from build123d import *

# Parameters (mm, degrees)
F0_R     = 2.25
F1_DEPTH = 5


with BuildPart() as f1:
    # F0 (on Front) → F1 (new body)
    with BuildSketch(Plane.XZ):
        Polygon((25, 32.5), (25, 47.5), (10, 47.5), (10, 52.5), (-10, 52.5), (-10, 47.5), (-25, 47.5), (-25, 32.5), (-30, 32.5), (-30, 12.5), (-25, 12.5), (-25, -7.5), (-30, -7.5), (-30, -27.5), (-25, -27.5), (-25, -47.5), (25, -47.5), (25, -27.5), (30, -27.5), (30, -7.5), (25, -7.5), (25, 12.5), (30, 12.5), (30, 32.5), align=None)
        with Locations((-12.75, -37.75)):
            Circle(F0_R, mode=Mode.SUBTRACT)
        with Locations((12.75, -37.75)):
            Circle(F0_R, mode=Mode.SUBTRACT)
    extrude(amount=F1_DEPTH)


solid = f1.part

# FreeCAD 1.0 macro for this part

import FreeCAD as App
import Part
import Sketcher
Q = App.Units.Quantity

doc = App.newDocument("Part")
params = doc.addObject("Spreadsheet::Sheet", "Params")
for row, (alias, value) in enumerate([
    ("sketch1_diameter", "4.5 mm"),
    ("sketch1_width", "15 mm"),
    ("sketch1_width2", "20 mm"),
    ("sketch1_width3", "5 mm"),
    ("pad1_length", "5 mm"),
], start=1):
    params.set(f"A{row}", alias)
    params.set(f"B{row}", "=" + value)
    params.setAlias(f"B{row}", alias)

body = doc.addObject("PartDesign::Body", "Body")

# Sketch on XZ plane
sketch1 = doc.addObject("Sketcher::SketchObject", "Sketch")
body.addObject(sketch1)
sketch1.AttachmentSupport = (doc.XZ_Plane, [""])
sketch1.MapMode = "FlatFace"
sketch1.addGeometry([
    Part.LineSegment(App.Vector(25, 32.5, 0), App.Vector(25, 47.5, 0)),  # 0
    Part.LineSegment(App.Vector(25, 47.5, 0), App.Vector(10, 47.5, 0)),  # 1
    Part.LineSegment(App.Vector(10, 47.5, 0), App.Vector(10, 52.5, 0)),  # 2
    Part.LineSegment(App.Vector(10, 52.5, 0), App.Vector(-10, 52.5, 0)),  # 3
    Part.LineSegment(App.Vector(-10, 52.5, 0), App.Vector(-10, 47.5, 0)),  # 4
    Part.LineSegment(App.Vector(-10, 47.5, 0), App.Vector(-25, 47.5, 0)),  # 5
    Part.LineSegment(App.Vector(-25, 47.5, 0), App.Vector(-25, 32.5, 0)),  # 6
    Part.LineSegment(App.Vector(-25, 32.5, 0), App.Vector(-30, 32.5, 0)),  # 7
    Part.LineSegment(App.Vector(-30, 32.5, 0), App.Vector(-30, 12.5, 0)),  # 8
    Part.LineSegment(App.Vector(-30, 12.5, 0), App.Vector(-25, 12.5, 0)),  # 9
    Part.LineSegment(App.Vector(-25, 12.5, 0), App.Vector(-25, -7.5, 0)),  # 10
    Part.LineSegment(App.Vector(-25, -7.5, 0), App.Vector(-30, -7.5, 0)),  # 11
    Part.LineSegment(App.Vector(-30, -7.5, 0), App.Vector(-30, -27.5, 0)),  # 12
    Part.LineSegment(App.Vector(-30, -27.5, 0), App.Vector(-25, -27.5, 0)),  # 13
    Part.LineSegment(App.Vector(-25, -27.5, 0), App.Vector(-25, -47.5, 0)),  # 14
    Part.LineSegment(App.Vector(-25, -47.5, 0), App.Vector(25, -47.5, 0)),  # 15
    Part.LineSegment(App.Vector(25, -47.5, 0), App.Vector(25, -27.5, 0)),  # 16
    Part.LineSegment(App.Vector(25, -27.5, 0), App.Vector(30, -27.5, 0)),  # 17
    Part.LineSegment(App.Vector(30, -27.5, 0), App.Vector(30, -7.5, 0)),  # 18
    Part.LineSegment(App.Vector(30, -7.5, 0), App.Vector(25, -7.5, 0)),  # 19
    Part.LineSegment(App.Vector(25, -7.5, 0), App.Vector(25, 12.5, 0)),  # 20
    Part.LineSegment(App.Vector(25, 12.5, 0), App.Vector(30, 12.5, 0)),  # 21
    Part.LineSegment(App.Vector(30, 12.5, 0), App.Vector(30, 32.5, 0)),  # 22
    Part.LineSegment(App.Vector(30, 32.5, 0), App.Vector(25, 32.5, 0)),  # 23
    Part.Circle(App.Vector(-12.8, -37.8, 0), App.Vector(0, 0, 1), 2.2),  # 24
    Part.Circle(App.Vector(12.8, -37.8, 0), App.Vector(0, 0, 1), 2.2),  # 25
], False)
sketch1.addConstraint([
    Sketcher.Constraint("Coincident", 0, 2, 1, 1),
    Sketcher.Constraint("Coincident", 1, 2, 2, 1),
    Sketcher.Constraint("Coincident", 2, 2, 3, 1),
    Sketcher.Constraint("Coincident", 3, 2, 4, 1),
    Sketcher.Constraint("Coincident", 4, 2, 5, 1),
    Sketcher.Constraint("Coincident", 5, 2, 6, 1),
    Sketcher.Constraint("Coincident", 6, 2, 7, 1),
    Sketcher.Constraint("Coincident", 7, 2, 8, 1),
    Sketcher.Constraint("Coincident", 8, 2, 9, 1),
    Sketcher.Constraint("Coincident", 9, 2, 10, 1),
    Sketcher.Constraint("Coincident", 10, 2, 11, 1),
    Sketcher.Constraint("Coincident", 11, 2, 12, 1),
    Sketcher.Constraint("Coincident", 12, 2, 13, 1),
    Sketcher.Constraint("Coincident", 13, 2, 14, 1),
    Sketcher.Constraint("Coincident", 14, 2, 15, 1),
    Sketcher.Constraint("Coincident", 15, 2, 16, 1),
    Sketcher.Constraint("Coincident", 16, 2, 17, 1),
    Sketcher.Constraint("Coincident", 17, 2, 18, 1),
    Sketcher.Constraint("Coincident", 18, 2, 19, 1),
    Sketcher.Constraint("Coincident", 19, 2, 20, 1),
    Sketcher.Constraint("Coincident", 20, 2, 21, 1),
    Sketcher.Constraint("Coincident", 21, 2, 22, 1),
    Sketcher.Constraint("Coincident", 22, 2, 23, 1),
    Sketcher.Constraint("Coincident", 23, 2, 0, 1),
    Sketcher.Constraint("Vertical", 0),
    Sketcher.Constraint("Horizontal", 1),
    Sketcher.Constraint("Vertical", 2),
    Sketcher.Constraint("Horizontal", 3),
    Sketcher.Constraint("Vertical", 4),
    Sketcher.Constraint("Horizontal", 5),
    Sketcher.Constraint("Vertical", 6),
    Sketcher.Constraint("Horizontal", 7),
    Sketcher.Constraint("Vertical", 8),
    Sketcher.Constraint("Horizontal", 9),
    Sketcher.Constraint("Vertical", 10),
    Sketcher.Constraint("Horizontal", 11),
    Sketcher.Constraint("Vertical", 12),
    Sketcher.Constraint("Horizontal", 13),
    Sketcher.Constraint("Vertical", 14),
    Sketcher.Constraint("Horizontal", 15),
    Sketcher.Constraint("Vertical", 16),
    Sketcher.Constraint("Horizontal", 17),
    Sketcher.Constraint("Vertical", 18),
    Sketcher.Constraint("Horizontal", 19),
    Sketcher.Constraint("Vertical", 20),
    Sketcher.Constraint("Horizontal", 21),
    Sketcher.Constraint("Vertical", 22),
    Sketcher.Constraint("Horizontal", 23),
    Sketcher.Constraint("Equal", 24, 25),
    Sketcher.Constraint("Symmetric", 0, 2, 14, 2, -1, 1),
    Sketcher.Constraint("Symmetric", 5, 2, 15, 2, -1, 1),
    Sketcher.Constraint("Symmetric", 24, 3, 25, 3, -2),
    Sketcher.Constraint("Symmetric", 13, 2, 16, 2, -2),
    Sketcher.Constraint("Symmetric", 11, 2, 18, 2, -2),
    Sketcher.Constraint("Symmetric", 9, 2, 20, 2, -2),
    Sketcher.Constraint("Symmetric", 7, 2, 22, 2, -2),
    Sketcher.Constraint("Vertical", 6, 2, 9, 2),
    Sketcher.Constraint("Vertical", 8, 2, 11, 2),
    Sketcher.Constraint("Equal", 1, 5),
    Sketcher.Constraint("Equal", 5, 0),
    Sketcher.Constraint("Equal", 23, 2),
    Sketcher.Constraint("Equal", 3, 8),
    Sketcher.Constraint("Equal", 8, 10),
    Sketcher.Constraint("Equal", 10, 12),
    Sketcher.Constraint("Equal", 12, 14),
    Sketcher.Constraint("Diameter", 24, Q("4.5 mm")),
    Sketcher.Constraint("DistanceX", 1, 2, 1, 1, Q("15 mm")),
    Sketcher.Constraint("DistanceX", 3, 2, 3, 1, Q("20 mm")),
    Sketcher.Constraint("DistanceX", 7, 2, 7, 1, Q("5 mm")),
    Sketcher.Constraint("DistanceX", 24, 3, 25, 3, Q("25.5 mm")),
    Sketcher.Constraint("DistanceY", 24, 3, -1, 1, Q("37.75 mm")),
])
sketch1.setExpression("Constraints[65]", "Params.sketch1_diameter")
sketch1.setExpression("Constraints[66]", "Params.sketch1_width")
sketch1.setExpression("Constraints[67]", "Params.sketch1_width2")
sketch1.setExpression("Constraints[68]", "Params.sketch1_width3")
pad1 = doc.addObject("PartDesign::Pad", "Pad")
body.addObject(pad1)
pad1.Profile = sketch1
pad1.setExpression("Length", "Params.pad1_length")

doc.recompute()
